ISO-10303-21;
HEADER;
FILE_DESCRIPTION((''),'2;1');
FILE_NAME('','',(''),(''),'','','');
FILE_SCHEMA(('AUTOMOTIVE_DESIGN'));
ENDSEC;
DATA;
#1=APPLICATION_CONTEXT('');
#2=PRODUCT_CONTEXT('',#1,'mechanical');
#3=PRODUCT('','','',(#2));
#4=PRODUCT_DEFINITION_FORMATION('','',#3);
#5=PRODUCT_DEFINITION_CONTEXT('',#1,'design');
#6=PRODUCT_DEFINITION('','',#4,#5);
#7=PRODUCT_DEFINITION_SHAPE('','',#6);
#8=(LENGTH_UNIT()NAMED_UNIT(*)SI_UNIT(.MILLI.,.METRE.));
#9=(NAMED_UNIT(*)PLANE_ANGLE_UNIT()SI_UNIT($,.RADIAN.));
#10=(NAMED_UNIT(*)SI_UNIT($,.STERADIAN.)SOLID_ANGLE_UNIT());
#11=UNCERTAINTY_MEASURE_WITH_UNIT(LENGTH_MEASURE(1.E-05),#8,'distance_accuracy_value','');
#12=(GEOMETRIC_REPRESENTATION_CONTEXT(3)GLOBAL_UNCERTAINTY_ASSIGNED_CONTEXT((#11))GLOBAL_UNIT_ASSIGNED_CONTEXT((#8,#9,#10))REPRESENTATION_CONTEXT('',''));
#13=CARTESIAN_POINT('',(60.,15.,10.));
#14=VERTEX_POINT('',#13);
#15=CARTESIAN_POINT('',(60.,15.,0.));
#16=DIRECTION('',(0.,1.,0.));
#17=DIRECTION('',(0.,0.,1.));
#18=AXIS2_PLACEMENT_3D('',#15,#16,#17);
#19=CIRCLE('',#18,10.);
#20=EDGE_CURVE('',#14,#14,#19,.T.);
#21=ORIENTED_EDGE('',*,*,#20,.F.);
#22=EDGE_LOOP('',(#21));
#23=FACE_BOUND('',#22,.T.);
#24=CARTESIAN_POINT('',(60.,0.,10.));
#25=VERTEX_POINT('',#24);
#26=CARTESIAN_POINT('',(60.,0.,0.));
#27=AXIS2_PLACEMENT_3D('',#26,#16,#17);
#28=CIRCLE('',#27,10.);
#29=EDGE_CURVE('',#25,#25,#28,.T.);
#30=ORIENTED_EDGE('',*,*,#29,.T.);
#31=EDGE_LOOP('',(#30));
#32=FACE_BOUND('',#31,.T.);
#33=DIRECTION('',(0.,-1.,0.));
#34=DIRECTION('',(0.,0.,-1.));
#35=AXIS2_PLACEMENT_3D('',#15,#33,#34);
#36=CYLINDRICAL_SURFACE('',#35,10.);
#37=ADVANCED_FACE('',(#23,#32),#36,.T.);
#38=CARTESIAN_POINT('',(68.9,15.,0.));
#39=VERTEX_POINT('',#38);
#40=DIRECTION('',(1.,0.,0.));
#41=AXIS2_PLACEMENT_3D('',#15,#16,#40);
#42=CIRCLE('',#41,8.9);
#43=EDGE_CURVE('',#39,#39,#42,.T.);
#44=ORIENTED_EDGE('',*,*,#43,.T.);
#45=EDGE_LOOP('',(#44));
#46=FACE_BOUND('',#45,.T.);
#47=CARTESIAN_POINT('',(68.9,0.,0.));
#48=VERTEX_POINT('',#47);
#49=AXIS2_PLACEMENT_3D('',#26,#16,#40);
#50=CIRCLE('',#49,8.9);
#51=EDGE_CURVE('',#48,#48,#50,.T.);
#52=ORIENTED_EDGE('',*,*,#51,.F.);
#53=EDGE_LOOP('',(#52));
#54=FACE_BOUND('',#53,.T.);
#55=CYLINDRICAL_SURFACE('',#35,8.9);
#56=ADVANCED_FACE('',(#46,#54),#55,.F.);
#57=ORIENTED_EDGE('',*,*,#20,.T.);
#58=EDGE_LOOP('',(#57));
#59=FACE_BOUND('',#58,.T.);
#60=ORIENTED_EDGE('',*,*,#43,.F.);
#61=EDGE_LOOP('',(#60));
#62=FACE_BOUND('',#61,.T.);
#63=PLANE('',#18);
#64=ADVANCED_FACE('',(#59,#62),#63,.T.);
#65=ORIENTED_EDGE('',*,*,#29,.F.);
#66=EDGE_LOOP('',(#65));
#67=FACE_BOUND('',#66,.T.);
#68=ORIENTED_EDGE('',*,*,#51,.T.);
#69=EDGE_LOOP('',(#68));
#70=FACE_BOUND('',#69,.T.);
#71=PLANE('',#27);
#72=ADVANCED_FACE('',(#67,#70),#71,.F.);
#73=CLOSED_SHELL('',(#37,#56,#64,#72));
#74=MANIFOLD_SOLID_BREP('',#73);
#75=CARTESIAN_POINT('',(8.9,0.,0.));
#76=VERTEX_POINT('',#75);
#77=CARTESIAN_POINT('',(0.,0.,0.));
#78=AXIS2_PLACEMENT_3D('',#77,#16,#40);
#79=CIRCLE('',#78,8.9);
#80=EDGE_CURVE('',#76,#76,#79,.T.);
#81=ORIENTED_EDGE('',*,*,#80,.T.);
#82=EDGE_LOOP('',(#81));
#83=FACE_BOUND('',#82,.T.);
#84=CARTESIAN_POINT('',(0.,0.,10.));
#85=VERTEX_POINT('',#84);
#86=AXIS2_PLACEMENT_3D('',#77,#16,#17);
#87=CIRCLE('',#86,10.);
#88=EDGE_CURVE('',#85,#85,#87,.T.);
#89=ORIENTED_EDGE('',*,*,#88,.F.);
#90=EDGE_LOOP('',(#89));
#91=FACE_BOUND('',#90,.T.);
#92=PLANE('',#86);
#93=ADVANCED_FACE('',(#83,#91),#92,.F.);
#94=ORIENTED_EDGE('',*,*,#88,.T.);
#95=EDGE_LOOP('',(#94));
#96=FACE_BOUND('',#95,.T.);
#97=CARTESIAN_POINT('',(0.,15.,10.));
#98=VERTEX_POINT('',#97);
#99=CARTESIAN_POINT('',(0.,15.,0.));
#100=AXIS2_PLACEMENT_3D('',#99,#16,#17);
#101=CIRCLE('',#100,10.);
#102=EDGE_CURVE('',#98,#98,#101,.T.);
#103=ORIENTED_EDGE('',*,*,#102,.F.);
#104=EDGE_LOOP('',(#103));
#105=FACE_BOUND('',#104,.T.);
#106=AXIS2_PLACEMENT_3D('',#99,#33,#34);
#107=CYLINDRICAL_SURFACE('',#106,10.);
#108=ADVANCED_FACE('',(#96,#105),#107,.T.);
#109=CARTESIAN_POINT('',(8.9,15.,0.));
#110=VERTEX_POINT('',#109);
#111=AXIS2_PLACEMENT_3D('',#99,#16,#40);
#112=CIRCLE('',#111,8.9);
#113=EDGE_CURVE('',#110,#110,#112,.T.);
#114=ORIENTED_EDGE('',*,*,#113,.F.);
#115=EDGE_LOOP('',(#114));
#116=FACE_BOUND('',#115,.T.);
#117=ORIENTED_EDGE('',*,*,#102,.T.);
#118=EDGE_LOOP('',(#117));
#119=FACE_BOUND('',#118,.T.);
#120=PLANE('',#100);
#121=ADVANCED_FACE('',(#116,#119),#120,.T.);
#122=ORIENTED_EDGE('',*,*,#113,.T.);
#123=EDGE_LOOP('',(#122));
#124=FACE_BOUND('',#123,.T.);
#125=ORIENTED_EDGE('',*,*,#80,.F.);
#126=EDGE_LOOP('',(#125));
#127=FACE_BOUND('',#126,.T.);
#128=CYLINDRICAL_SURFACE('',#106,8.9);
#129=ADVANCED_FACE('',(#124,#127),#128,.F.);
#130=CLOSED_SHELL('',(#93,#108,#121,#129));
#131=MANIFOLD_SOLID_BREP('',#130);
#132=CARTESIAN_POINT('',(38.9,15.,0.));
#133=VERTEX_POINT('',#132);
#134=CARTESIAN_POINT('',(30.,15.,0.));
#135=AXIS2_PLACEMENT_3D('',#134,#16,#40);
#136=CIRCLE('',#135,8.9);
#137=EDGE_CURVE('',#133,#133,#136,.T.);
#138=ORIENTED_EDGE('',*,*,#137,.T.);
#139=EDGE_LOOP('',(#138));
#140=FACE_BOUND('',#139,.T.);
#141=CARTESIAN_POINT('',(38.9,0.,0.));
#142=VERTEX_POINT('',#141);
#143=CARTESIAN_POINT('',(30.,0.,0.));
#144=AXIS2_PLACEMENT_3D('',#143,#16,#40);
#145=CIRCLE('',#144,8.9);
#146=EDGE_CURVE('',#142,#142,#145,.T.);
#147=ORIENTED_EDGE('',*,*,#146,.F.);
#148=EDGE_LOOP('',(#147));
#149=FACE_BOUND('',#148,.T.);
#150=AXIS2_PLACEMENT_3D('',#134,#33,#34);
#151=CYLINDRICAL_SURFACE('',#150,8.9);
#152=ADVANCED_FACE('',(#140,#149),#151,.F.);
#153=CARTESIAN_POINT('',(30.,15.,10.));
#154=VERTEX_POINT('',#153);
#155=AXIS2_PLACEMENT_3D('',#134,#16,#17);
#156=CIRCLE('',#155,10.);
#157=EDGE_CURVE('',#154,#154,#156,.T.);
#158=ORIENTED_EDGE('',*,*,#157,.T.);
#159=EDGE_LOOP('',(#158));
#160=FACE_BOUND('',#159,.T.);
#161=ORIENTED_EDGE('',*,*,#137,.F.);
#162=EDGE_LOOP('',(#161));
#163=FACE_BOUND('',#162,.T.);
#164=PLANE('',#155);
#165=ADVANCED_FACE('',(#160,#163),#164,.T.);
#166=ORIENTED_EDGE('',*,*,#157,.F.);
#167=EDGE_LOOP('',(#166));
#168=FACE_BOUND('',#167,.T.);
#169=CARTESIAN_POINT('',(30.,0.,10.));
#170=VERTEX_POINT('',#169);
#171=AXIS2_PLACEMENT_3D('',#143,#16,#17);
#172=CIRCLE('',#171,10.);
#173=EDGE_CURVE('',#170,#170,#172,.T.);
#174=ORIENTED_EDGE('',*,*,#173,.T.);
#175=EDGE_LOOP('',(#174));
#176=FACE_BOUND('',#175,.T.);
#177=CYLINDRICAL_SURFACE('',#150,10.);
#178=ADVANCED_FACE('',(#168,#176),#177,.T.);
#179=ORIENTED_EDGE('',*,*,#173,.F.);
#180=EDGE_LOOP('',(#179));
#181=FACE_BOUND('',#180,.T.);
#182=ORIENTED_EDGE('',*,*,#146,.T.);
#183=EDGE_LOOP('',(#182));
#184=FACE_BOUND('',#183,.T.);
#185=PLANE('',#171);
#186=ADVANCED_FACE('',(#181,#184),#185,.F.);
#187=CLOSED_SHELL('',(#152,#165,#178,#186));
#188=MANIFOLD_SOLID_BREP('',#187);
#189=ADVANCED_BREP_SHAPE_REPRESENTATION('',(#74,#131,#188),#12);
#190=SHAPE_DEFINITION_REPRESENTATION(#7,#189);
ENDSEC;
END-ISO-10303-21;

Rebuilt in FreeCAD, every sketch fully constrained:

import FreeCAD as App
import Part
import Sketcher
from FreeCAD import Vector
Q = App.Units.Quantity

doc = App.newDocument("Part")
body = doc.addObject("PartDesign::Body", "Body")

# Sketch on XZ plane
sketch1 = body.newObject("Sketcher::SketchObject", "Sketch")
sketch1.AttachmentSupport = (doc.getObject("XZ_Plane"), [""])
sketch1.MapMode = "FlatFace"
sketch1.addGeometry([
    Part.Circle(Vector(0, 0, 0), Vector(0, 0, 1), 10),
    Part.Circle(Vector(0, 0, 0), Vector(0, 0, 1), 9),
], False)
sketch1.addConstraint([
    Sketcher.Constraint("Coincident", 0, 3, -1, 1),
    Sketcher.Constraint("Coincident", 1, 3, -1, 1),
    Sketcher.Constraint("Diameter", 0, Q("20 mm")),
    Sketcher.Constraint("Diameter", 1, Q("17.8 mm")),
])
pad1 = body.newObject("PartDesign::Pad", "Pad")
pad1.Profile = sketch1
pad1.Length = 15
pad1.Reversed = True
body2 = doc.addObject("PartDesign::Body", "Body001")

# Sketch on XZ plane
sketch2 = body2.newObject("Sketcher::SketchObject", "Sketch001")
sketch2.AttachmentSupport = (doc.getObject("XZ_Plane001"), [""])
sketch2.MapMode = "FlatFace"
sketch2.addGeometry([
    Part.Circle(Vector(30, 0, 0), Vector(0, 0, 1), 10),
    Part.Circle(Vector(30, 0, 0), Vector(0, 0, 1), 9),
], False)
sketch2.addConstraint([
    Sketcher.Constraint("Coincident", 1, 3, 0, 3),
    Sketcher.Constraint("PointOnObject", 0, 3, -1),
    Sketcher.Constraint("Diameter", 0, Q("20 mm")),
    Sketcher.Constraint("Diameter", 1, Q("17.8 mm")),
    Sketcher.Constraint("DistanceX", -1, 1, 0, 3, Q("30 mm")),
])
pad2 = body2.newObject("PartDesign::Pad", "Pad001")
pad2.Profile = sketch2
pad2.Length = 15
pad2.Reversed = True
body3 = doc.addObject("PartDesign::Body", "Body002")

# Sketch on XZ plane
sketch3 = body3.newObject("Sketcher::SketchObject", "Sketch002")
sketch3.AttachmentSupport = (doc.getObject("XZ_Plane002"), [""])
sketch3.MapMode = "FlatFace"
sketch3.addGeometry([
    Part.Circle(Vector(60, 0, 0), Vector(0, 0, 1), 10),
    Part.Circle(Vector(60, 0, 0), Vector(0, 0, 1), 9),
], False)
sketch3.addConstraint([
    Sketcher.Constraint("Coincident", 1, 3, 0, 3),
    Sketcher.Constraint("PointOnObject", 0, 3, -1),
    Sketcher.Constraint("Diameter", 0, Q("20 mm")),
    Sketcher.Constraint("Diameter", 1, Q("17.8 mm")),
    Sketcher.Constraint("DistanceX", -1, 1, 0, 3, Q("60 mm")),
])
pad3 = body3.newObject("PartDesign::Pad", "Pad002")
pad3.Profile = sketch3
pad3.Length = 15
pad3.Reversed = True

doc.recompute()
